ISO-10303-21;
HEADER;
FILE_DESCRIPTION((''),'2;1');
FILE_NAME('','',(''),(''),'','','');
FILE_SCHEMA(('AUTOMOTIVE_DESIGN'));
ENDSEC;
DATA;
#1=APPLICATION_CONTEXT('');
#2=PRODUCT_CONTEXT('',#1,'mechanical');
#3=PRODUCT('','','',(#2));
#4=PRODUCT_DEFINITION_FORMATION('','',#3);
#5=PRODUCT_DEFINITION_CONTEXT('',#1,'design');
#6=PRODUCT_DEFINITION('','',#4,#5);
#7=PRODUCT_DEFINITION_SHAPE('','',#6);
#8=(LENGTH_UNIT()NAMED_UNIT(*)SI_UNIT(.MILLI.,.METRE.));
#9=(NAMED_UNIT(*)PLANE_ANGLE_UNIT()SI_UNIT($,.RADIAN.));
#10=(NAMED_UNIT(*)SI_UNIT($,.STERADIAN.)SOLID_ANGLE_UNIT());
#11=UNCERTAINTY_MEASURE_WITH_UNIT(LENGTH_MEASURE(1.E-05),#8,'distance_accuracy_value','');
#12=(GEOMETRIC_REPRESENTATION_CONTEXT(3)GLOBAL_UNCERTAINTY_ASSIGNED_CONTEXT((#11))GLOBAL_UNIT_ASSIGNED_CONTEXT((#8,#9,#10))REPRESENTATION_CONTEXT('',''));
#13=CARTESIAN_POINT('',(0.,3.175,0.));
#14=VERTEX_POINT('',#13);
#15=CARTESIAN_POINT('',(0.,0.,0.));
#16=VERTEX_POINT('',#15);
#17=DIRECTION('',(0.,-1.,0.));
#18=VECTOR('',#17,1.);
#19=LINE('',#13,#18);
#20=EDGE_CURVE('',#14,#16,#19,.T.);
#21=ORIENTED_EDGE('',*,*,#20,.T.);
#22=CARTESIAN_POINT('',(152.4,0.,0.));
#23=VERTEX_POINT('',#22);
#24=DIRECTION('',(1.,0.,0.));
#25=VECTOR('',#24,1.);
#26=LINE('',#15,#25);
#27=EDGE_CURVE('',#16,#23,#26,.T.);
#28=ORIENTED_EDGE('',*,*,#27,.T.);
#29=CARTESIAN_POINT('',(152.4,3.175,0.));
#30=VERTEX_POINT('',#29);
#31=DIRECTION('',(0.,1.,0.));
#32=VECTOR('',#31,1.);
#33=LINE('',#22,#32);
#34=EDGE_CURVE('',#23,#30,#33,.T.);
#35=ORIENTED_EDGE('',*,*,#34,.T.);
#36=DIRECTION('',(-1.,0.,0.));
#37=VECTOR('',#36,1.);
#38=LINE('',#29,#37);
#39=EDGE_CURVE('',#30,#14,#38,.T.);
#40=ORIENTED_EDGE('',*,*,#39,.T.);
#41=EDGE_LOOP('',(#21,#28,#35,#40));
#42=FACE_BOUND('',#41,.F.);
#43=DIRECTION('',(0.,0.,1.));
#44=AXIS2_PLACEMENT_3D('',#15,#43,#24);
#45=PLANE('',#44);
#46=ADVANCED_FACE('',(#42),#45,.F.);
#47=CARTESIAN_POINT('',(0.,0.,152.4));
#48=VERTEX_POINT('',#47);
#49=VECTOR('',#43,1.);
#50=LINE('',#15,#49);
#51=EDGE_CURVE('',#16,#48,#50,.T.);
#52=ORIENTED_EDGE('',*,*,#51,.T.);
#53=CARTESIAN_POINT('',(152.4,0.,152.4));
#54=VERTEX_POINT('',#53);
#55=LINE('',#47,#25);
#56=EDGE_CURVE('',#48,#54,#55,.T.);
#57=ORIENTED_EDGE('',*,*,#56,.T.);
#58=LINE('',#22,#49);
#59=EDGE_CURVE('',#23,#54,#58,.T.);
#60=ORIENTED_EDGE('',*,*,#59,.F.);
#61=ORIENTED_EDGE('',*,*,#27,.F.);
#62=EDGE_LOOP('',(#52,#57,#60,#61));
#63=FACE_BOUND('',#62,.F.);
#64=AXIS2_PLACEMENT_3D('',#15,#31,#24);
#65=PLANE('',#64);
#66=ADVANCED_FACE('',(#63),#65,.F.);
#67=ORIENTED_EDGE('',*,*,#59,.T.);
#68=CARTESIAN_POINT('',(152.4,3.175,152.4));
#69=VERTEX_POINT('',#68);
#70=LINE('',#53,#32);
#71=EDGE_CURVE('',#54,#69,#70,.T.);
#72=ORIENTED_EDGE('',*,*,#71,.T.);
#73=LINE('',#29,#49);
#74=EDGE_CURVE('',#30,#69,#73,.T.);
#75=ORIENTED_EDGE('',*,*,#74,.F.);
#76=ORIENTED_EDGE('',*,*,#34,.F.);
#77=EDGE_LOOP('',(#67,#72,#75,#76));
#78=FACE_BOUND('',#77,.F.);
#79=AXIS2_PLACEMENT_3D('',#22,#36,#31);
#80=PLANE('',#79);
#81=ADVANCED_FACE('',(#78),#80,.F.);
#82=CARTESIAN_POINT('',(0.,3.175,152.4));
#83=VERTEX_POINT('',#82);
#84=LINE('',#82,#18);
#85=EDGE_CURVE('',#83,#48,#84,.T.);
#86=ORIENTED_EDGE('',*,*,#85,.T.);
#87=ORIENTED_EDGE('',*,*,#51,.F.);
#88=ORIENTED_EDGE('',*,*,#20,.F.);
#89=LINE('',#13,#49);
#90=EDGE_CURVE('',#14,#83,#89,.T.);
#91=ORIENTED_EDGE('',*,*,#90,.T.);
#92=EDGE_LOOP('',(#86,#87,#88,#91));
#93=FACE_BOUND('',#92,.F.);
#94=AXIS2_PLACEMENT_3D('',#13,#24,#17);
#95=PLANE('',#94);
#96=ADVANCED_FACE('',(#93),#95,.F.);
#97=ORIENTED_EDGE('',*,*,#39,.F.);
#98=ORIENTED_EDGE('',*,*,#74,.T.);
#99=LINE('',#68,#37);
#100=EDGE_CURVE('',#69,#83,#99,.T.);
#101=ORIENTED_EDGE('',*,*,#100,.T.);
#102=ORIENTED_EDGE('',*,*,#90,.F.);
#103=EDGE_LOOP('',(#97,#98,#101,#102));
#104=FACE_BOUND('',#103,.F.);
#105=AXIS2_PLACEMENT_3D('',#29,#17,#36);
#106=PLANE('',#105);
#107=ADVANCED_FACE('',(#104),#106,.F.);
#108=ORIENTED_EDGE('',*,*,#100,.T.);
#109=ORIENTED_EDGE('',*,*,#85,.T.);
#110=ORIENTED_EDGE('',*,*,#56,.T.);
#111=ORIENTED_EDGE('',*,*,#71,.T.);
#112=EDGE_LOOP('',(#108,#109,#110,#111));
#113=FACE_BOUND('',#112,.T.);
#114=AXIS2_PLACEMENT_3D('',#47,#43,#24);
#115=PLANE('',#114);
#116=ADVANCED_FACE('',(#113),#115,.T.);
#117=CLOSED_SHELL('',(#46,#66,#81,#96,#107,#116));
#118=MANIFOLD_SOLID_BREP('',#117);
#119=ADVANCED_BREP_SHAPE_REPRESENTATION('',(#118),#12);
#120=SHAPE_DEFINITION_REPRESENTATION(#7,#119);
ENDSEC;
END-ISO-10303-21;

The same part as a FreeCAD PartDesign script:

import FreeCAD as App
import Part
import Sketcher
Q = App.Units.Quantity


def add_polygon(sketch, points):
    """Adds a closed chain of lines whose ends are joined by coincident constraints."""
    first, n = sketch.GeometryCount, len(points)
    for a, b in zip(points, points[1:] + points[:1]):
        sketch.addGeometry(Part.LineSegment(App.Vector(*a, 0), App.Vector(*b, 0)), False)
    for i in range(n):
        sketch.addConstraint(Sketcher.Constraint("Coincident", first + i, 2, first + (i + 1) % n, 1))

doc = App.newDocument("Part")
body = doc.addObject("PartDesign::Body", "Body")

# Sketch on XY plane
sketch1 = body.newObject("Sketcher::SketchObject", "Sketch")
sketch1.AttachmentSupport = (doc.getObject("XY_Plane"), [""])
sketch1.MapMode = "FlatFace"
add_polygon(sketch1, [(0, 3.2), (0, 0), (152.4, 0), (152.4, 3.2)])  # lines 0-3
sketch1.addConstraint([
    Sketcher.Constraint("Vertical", 0),
    Sketcher.Constraint("Horizontal", 1),
    Sketcher.Constraint("Vertical", 2),
    Sketcher.Constraint("Horizontal", 3),
    Sketcher.Constraint("Coincident", 0, 2, -1, 1),
    Sketcher.Constraint("DistanceX", 1, 1, 1, 2, Q("6 in")),
    Sketcher.Constraint("DistanceY", 0, 2, 0, 1, Q("0.125 in")),
])
pad1 = body.newObject("PartDesign::Pad", "Pad")
pad1.Profile = sketch1
pad1.Length = Q("6 in")

doc.recompute()
